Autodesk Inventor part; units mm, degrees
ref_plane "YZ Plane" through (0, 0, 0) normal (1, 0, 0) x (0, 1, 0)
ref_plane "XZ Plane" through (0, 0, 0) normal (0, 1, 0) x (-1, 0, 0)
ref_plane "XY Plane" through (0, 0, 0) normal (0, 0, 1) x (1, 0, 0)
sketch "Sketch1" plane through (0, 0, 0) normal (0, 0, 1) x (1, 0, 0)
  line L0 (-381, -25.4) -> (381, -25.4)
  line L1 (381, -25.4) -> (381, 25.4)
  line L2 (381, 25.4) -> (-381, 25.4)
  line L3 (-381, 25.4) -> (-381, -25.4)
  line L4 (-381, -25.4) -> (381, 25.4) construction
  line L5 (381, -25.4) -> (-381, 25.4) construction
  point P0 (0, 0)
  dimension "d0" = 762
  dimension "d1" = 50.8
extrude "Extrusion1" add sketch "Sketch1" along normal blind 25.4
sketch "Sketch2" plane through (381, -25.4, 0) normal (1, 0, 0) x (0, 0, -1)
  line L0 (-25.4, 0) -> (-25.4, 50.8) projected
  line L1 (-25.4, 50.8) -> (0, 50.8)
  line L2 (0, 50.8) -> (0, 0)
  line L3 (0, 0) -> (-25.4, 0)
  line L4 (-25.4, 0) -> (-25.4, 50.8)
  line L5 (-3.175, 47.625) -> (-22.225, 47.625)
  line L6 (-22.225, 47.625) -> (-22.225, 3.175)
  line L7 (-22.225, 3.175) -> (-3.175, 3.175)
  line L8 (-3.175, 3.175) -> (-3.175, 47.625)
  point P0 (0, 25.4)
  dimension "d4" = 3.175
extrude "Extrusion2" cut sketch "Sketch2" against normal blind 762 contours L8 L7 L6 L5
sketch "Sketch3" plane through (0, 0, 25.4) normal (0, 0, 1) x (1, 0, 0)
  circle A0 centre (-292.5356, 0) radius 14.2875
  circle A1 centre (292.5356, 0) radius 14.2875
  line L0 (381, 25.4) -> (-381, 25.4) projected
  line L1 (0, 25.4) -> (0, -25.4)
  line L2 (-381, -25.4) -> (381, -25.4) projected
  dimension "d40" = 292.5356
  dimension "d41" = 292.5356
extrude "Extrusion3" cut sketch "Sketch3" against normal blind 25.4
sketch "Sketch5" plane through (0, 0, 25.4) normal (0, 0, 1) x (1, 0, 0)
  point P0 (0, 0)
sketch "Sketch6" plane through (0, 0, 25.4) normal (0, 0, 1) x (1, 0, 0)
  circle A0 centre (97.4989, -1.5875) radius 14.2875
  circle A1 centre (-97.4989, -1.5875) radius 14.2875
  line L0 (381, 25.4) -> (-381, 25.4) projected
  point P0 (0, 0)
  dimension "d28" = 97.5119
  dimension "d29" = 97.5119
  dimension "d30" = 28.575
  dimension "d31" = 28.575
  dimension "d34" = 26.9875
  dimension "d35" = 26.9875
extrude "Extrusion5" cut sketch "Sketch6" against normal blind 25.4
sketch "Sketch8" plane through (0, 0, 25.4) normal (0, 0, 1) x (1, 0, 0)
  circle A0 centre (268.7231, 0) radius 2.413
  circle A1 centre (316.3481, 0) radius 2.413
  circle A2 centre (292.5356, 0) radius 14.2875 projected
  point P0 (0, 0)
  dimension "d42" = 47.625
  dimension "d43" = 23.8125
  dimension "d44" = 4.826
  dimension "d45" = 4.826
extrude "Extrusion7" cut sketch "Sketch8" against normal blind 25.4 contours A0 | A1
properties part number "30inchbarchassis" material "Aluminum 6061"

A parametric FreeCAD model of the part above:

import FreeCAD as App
import Part
import Sketcher
from FreeCAD import Vector
Q = App.Units.Quantity


def add_polygon(sketch, points):
    """Adds a closed chain of lines whose ends are joined by coincident constraints."""
    first, n = sketch.GeometryCount, len(points)
    for a, b in zip(points, points[1:] + points[:1]):
        sketch.addGeometry(Part.LineSegment(App.Vector(*a, 0), App.Vector(*b, 0)), False)
    for i in range(n):
        sketch.addConstraint(Sketcher.Constraint("Coincident", first + i, 2, first + (i + 1) % n, 1))

doc = App.newDocument("Part")
params = doc.addObject("Spreadsheet::Sheet", "Params")
for row, (alias, value) in enumerate([
    ("sketch1_width", "30 in"),
    ("sketch1_height", "2 in"),
    ("pad1_length", "1 in"),
    ("sketch2_width", "1.75 in"),
    ("sketch2_height", "0.75 in"),
    ("pocket1_length", "30 in"),
    ("sketch3_diameter", "1.125 in"),
    ("pocket2_length", "1 in"),
    ("sketch4_diameter", "1.125 in"),
    ("pocket3_length", "1 in"),
    ("sketch5_diameter", "0.19 in"),
    ("pocket4_length", "1 in"),
], start=1):
    params.set(f"A{row}", alias)
    params.set(f"B{row}", "=" + value)
    params.setAlias(f"B{row}", alias)

body = doc.addObject("PartDesign::Body", "Body")

sketch1 = body.newObject("Sketcher::SketchObject", "Sketch")
sketch1.AttachmentSupport = (doc.getObject("XY_Plane"), [""])
sketch1.MapMode = "FlatFace"
add_polygon(sketch1, [(-381, 25), (-381, -25), (381, -25), (381, 25)])
sketch1.addConstraint([
    Sketcher.Constraint("Vertical", 0),
    Sketcher.Constraint("Horizontal", 1),
    Sketcher.Constraint("Vertical", 2),
    Sketcher.Constraint("Horizontal", 3),
    Sketcher.Constraint("Symmetric", 0, 2, 2, 2, -1, 1),
    Sketcher.Constraint("DistanceX", 1, 1, 1, 2, Q("30 in")),
    Sketcher.Constraint("DistanceY", 0, 2, 0, 1, Q("2 in")),
])
sketch1.setExpression("Constraints[9]", "Params.sketch1_width")
sketch1.setExpression("Constraints[10]", "Params.sketch1_height")
pad1 = body.newObject("PartDesign::Pad", "Pad")
pad1.Profile = sketch1
pad1.setExpression("Length", "Params.pad1_length")

sketch2 = body.newObject("Sketcher::SketchObject", "Sketch001")
sketch2.AttachmentSupport = (doc.getObject("YZ_Plane"), [""])
sketch2.MapMode = "FlatFace"
sketch2.AttachmentOffset = App.Placement(Vector(0, 0, 15 * 25.4), App.Rotation())
add_polygon(sketch2, [(-22, 3), (22, 3), (22, 22), (-22, 22)])
sketch2.addConstraint([
    Sketcher.Constraint("Horizontal", 0),
    Sketcher.Constraint("Vertical", 1),
    Sketcher.Constraint("Horizontal", 2),
    Sketcher.Constraint("Vertical", 3),
    Sketcher.Constraint("DistanceY", -1, 1, 0, 2, Q("0.125 in")),
    Sketcher.Constraint("DistanceX", 0, 1, 0, 2, Q("1.75 in")),
    Sketcher.Constraint("DistanceY", 1, 1, 1, 2, Q("0.75 in")),
    Sketcher.Constraint("DistanceX", -1, 1, 0, 2, Q("0.875 in")),
])
sketch2.setExpression("Constraints[9]", "Params.sketch2_width")
sketch2.setExpression("Constraints[10]", "Params.sketch2_height")
pocket1 = body.newObject("PartDesign::Pocket", "Pocket")
pocket1.Profile = sketch2
pocket1.setExpression("Length", "Params.pocket1_length")

sketch3 = body.newObject("Sketcher::SketchObject", "Sketch002")
sketch3.AttachmentSupport = (doc.getObject("XY_Plane"), [""])
sketch3.MapMode = "FlatFace"
sketch3.AttachmentOffset = App.Placement(Vector(0, 0, 1 * 25.4), App.Rotation())
sketch3.addGeometry([
    Part.Circle(Vector(-293, 0, 0), Vector(0, 0, 1), 14),
    Part.Circle(Vector(293, 0, 0), Vector(0, 0, 1), 14),
], False)
sketch3.addConstraint([
    Sketcher.Constraint("Equal", 0, 1),
    Sketcher.Constraint("Symmetric", 0, 3, 1, 3, -1, 1),
    Sketcher.Constraint("PointOnObject", 0, 3, -1),
    Sketcher.Constraint("Diameter", 0, Q("1.125 in")),
    Sketcher.Constraint("DistanceX", 0, 3, -1, 1, 292.5356),
])
sketch3.setExpression("Constraints[3]", "Params.sketch3_diameter")
pocket2 = body.newObject("PartDesign::Pocket", "Pocket001")
pocket2.Profile = sketch3
pocket2.setExpression("Length", "Params.pocket2_length")

sketch4 = body.newObject("Sketcher::SketchObject", "Sketch003")
sketch4.AttachmentSupport = (doc.getObject("XY_Plane"), [""])
sketch4.MapMode = "FlatFace"
sketch4.AttachmentOffset = App.Placement(Vector(0, 0, 1 * 25.4), App.Rotation())
sketch4.addGeometry([
    Part.Circle(Vector(97, -2, 0), Vector(0, 0, 1), 14),
    Part.Circle(Vector(-97, -2, 0), Vector(0, 0, 1), 14),
], False)
sketch4.addConstraint([
    Sketcher.Constraint("Equal", 0, 1),
    Sketcher.Constraint("Symmetric", 0, 3, 1, 3, -2),
    Sketcher.Constraint("Diameter", 0, Q("1.125 in")),
    Sketcher.Constraint("DistanceY", 0, 3, -1, 1, Q("0.0625 in")),
    Sketcher.Constraint("DistanceX", -1, 1, 0, 3, 97.499),
])
sketch4.setExpression("Constraints[2]", "Params.sketch4_diameter")
pocket3 = body.newObject("PartDesign::Pocket", "Pocket002")
pocket3.Profile = sketch4
pocket3.setExpression("Length", "Params.pocket3_length")

sketch5 = body.newObject("Sketcher::SketchObject", "Sketch004")
sketch5.AttachmentSupport = (doc.getObject("XY_Plane"), [""])
sketch5.MapMode = "FlatFace"
sketch5.AttachmentOffset = App.Placement(Vector(0, 0, 1 * 25.4), App.Rotation())
sketch5.addGeometry([
    Part.Circle(Vector(268.7, 0, 0), Vector(0, 0, 1), 2.4),
    Part.Circle(Vector(316.3, 0, 0), Vector(0, 0, 1), 2.4),
], False)
sketch5.addConstraint([
    Sketcher.Constraint("Equal", 0, 1),
    Sketcher.Constraint("PointOnObject", 0, 3, -1),
    Sketcher.Constraint("PointOnObject", 1, 3, -1),
    Sketcher.Constraint("Diameter", 0, Q("0.19 in")),
    Sketcher.Constraint("DistanceX", 0, 3, 1, 3, Q("1.875 in")),
    Sketcher.Constraint("DistanceX", -1, 1, 0, 3, 268.723),
])
sketch5.setExpression("Constraints[3]", "Params.sketch5_diameter")
pocket4 = body.newObject("PartDesign::Pocket", "Pocket003")
pocket4.Profile = sketch5
pocket4.setExpression("Length", "Params.pocket4_length")

doc.recompute()
